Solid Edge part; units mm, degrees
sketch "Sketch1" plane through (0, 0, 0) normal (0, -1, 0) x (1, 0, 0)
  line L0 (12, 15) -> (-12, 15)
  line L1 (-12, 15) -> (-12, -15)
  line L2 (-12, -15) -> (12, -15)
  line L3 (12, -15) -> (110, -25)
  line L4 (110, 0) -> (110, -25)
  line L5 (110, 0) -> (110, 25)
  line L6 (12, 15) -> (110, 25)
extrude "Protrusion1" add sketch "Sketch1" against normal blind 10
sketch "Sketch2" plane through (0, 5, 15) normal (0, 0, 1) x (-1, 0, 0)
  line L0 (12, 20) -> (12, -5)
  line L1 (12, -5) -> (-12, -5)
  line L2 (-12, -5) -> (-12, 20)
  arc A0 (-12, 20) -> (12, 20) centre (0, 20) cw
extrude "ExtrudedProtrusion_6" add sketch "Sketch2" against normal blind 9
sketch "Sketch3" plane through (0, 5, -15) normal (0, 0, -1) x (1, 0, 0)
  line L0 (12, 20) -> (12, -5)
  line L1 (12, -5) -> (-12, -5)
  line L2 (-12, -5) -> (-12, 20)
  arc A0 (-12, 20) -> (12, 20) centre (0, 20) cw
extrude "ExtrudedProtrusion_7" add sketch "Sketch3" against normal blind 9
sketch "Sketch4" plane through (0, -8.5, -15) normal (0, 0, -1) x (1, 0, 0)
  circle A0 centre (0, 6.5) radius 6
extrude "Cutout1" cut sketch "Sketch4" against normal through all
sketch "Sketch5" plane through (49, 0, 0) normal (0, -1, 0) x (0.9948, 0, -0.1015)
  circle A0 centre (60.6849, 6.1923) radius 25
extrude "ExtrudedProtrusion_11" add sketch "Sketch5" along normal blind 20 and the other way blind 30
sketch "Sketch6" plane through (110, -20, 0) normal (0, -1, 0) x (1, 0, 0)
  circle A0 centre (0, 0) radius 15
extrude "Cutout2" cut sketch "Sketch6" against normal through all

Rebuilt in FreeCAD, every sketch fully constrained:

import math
import FreeCAD as App
import Part
import Sketcher

doc = App.newDocument("Part")
body = doc.addObject("PartDesign::Body", "Body")

# Sketch on XZ plane
sketch1 = doc.addObject("Sketcher::SketchObject", "Sketch")
body.addObject(sketch1)
sketch1.AttachmentSupport = (doc.XZ_Plane, [""])
sketch1.MapMode = "FlatFace"
sketch1.addGeometry(Part.LineSegment(App.Vector(110, 25, 0), App.Vector(12, 15, 0)), False)
sketch1.addGeometry(Part.LineSegment(App.Vector(12, 15, 0), App.Vector(-12, 15, 0)), False)
sketch1.addGeometry(Part.LineSegment(App.Vector(-12, 15, 0), App.Vector(-12, -15, 0)), False)
sketch1.addGeometry(Part.LineSegment(App.Vector(-12, -15, 0), App.Vector(12, -15, 0)), False)
sketch1.addGeometry(Part.LineSegment(App.Vector(12, -15, 0), App.Vector(110, -25, 0)), False)
sketch1.addGeometry(Part.LineSegment(App.Vector(110, -25, 0), App.Vector(110, 25, 0)), False)
sketch1.addConstraint(Sketcher.Constraint("Coincident", 0, 2, 1, 1))
sketch1.addConstraint(Sketcher.Constraint("Coincident", 1, 2, 2, 1))
sketch1.addConstraint(Sketcher.Constraint("Coincident", 2, 2, 3, 1))
sketch1.addConstraint(Sketcher.Constraint("Coincident", 3, 2, 4, 1))
sketch1.addConstraint(Sketcher.Constraint("Coincident", 4, 2, 5, 1))
sketch1.addConstraint(Sketcher.Constraint("Coincident", 5, 2, 0, 1))
sketch1.addConstraint(Sketcher.Constraint("Horizontal", 1))
sketch1.addConstraint(Sketcher.Constraint("Vertical", 2))
sketch1.addConstraint(Sketcher.Constraint("Horizontal", 3))
sketch1.addConstraint(Sketcher.Constraint("Vertical", 5))
sketch1.addConstraint(Sketcher.Constraint("Symmetric", 0, 2, 2, 2, -1, 1))
sketch1.addConstraint(Sketcher.Constraint("Vertical", 0, 2, 3, 2))
sketch1.addConstraint(Sketcher.Constraint("Equal", 0, 4))
sketch1.addConstraint(Sketcher.Constraint("DistanceX", 1, 2, 1, 1, 24.0))
sketch1.addConstraint(Sketcher.Constraint("DistanceY", 2, 2, 2, 1, 30.0))
sketch1.addConstraint(Sketcher.Constraint("DistanceY", 5, 1, 5, 2, 50.0))
sketch1.addConstraint(Sketcher.Constraint("DistanceX", -1, 1, 4, 2, 110.0))
pad1 = doc.addObject("PartDesign::Pad", "Pad")
body.addObject(pad1)
pad1.Profile = sketch1
pad1.Length = 10
pad1.Reversed = True

# Sketch on XY plane
sketch2 = doc.addObject("Sketcher::SketchObject", "Sketch001")
body.addObject(sketch2)
sketch2.AttachmentSupport = (doc.XY_Plane, [""])
sketch2.MapMode = "FlatFace"
sketch2.AttachmentOffset = App.Placement(App.Vector(0, 0, 15), App.Rotation())
sketch2.addGeometry(Part.LineSegment(App.Vector(-12, 10, 0), App.Vector(-12, -15, 0)), False)
sketch2.addGeometry(Part.ArcOfCircle(Part.Circle(App.Vector(0, -15, 0), App.Vector(0, 0, 1), 12), math.radians(180), math.radians(360)), False)
sketch2.addGeometry(Part.LineSegment(App.Vector(12, -15, 0), App.Vector(12, 10, 0)), False)
sketch2.addGeometry(Part.LineSegment(App.Vector(12, 10, 0), App.Vector(-12, 10, 0)), False)
sketch2.addConstraint(Sketcher.Constraint("Tangent", 0, 2, 1, 1))
sketch2.addConstraint(Sketcher.Constraint("Tangent", 1, 2, 2, 1))
sketch2.addConstraint(Sketcher.Constraint("Coincident", 2, 2, 3, 1))
sketch2.addConstraint(Sketcher.Constraint("Coincident", 3, 2, 0, 1))
sketch2.addConstraint(Sketcher.Constraint("Vertical", 0))
sketch2.addConstraint(Sketcher.Constraint("Vertical", 2))
sketch2.addConstraint(Sketcher.Constraint("Horizontal", 3))
sketch2.addConstraint(Sketcher.Constraint("PointOnObject", 1, 3, -2))
sketch2.addConstraint(Sketcher.Constraint("Radius", 1, 12.0))
sketch2.addConstraint(Sketcher.Constraint("DistanceY", 0, 2, 0, 1, 25.0))
sketch2.addConstraint(Sketcher.Constraint("DistanceY", 1, 3, -1, 1, 15.0))
pad2 = doc.addObject("PartDesign::Pad", "Pad001")
body.addObject(pad2)
pad2.Profile = sketch2
pad2.Length = 9
pad2.Reversed = True

# Sketch on XY plane
sketch3 = doc.addObject("Sketcher::SketchObject", "Sketch002")
body.addObject(sketch3)
sketch3.AttachmentSupport = (doc.XY_Plane, [""])
sketch3.MapMode = "FlatFace"
sketch3.AttachmentOffset = App.Placement(App.Vector(0, 0, -15), App.Rotation())
sketch3.addGeometry(Part.LineSegment(App.Vector(12, 10, 0), App.Vector(12, -15, 0)), False)
sketch3.addGeometry(Part.ArcOfCircle(Part.Circle(App.Vector(0, -15, 0), App.Vector(0, 0, 1), 12), math.radians(180), math.radians(360)), False)
sketch3.addGeometry(Part.LineSegment(App.Vector(-12, -15, 0), App.Vector(-12, 10, 0)), False)
sketch3.addGeometry(Part.LineSegment(App.Vector(-12, 10, 0), App.Vector(12, 10, 0)), False)
sketch3.addConstraint(Sketcher.Constraint("Tangent", 0, 2, 1, 2))
sketch3.addConstraint(Sketcher.Constraint("Tangent", 1, 1, 2, 1))
sketch3.addConstraint(Sketcher.Constraint("Coincident", 2, 2, 3, 1))
sketch3.addConstraint(Sketcher.Constraint("Coincident", 3, 2, 0, 1))
sketch3.addConstraint(Sketcher.Constraint("Vertical", 0))
sketch3.addConstraint(Sketcher.Constraint("Vertical", 2))
sketch3.addConstraint(Sketcher.Constraint("Horizontal", 3))
sketch3.addConstraint(Sketcher.Constraint("PointOnObject", 1, 3, -2))
sketch3.addConstraint(Sketcher.Constraint("Radius", 1, 12.0))
sketch3.addConstraint(Sketcher.Constraint("DistanceY", 0, 2, 0, 1, 25.0))
sketch3.addConstraint(Sketcher.Constraint("DistanceY", 1, 3, -1, 1, 15.0))
pad3 = doc.addObject("PartDesign::Pad", "Pad002")
body.addObject(pad3)
pad3.Profile = sketch3
pad3.Length = 9

# Sketch on XY plane
sketch4 = doc.addObject("Sketcher::SketchObject", "Sketch003")
body.addObject(sketch4)
sketch4.AttachmentSupport = (doc.XY_Plane, [""])
sketch4.MapMode = "FlatFace"
sketch4.AttachmentOffset = App.Placement(App.Vector(0, 0, -15), App.Rotation())
sketch4.addGeometry(Part.Circle(App.Vector(0, -15, 0), App.Vector(0, 0, 1), 6), False)
sketch4.addConstraint(Sketcher.Constraint("PointOnObject", 0, 3, -2))
sketch4.addConstraint(Sketcher.Constraint("Diameter", 0, 12.0))
sketch4.addConstraint(Sketcher.Constraint("DistanceY", 0, 3, -1, 1, 15.0))
pocket1 = doc.addObject("PartDesign::Pocket", "Pocket")
body.addObject(pocket1)
pocket1.Profile = sketch4
pocket1.Type = "ThroughAll"
pocket1.Reversed = True

# Sketch on XZ plane
sketch5 = doc.addObject("Sketcher::SketchObject", "Sketch004")
body.addObject(sketch5)
sketch5.AttachmentSupport = (doc.XZ_Plane, [""])
sketch5.MapMode = "FlatFace"
sketch5.addGeometry(Part.Circle(App.Vector(110, 0, 0), App.Vector(0, 0, 1), 25), False)
sketch5.addConstraint(Sketcher.Constraint("Diameter", 0, 50.0))
sketch5.addConstraint(Sketcher.Constraint("DistanceX", -1, 1, 0, 3, 110.0))
sketch5.addConstraint(Sketcher.Constraint("DistanceY", -1, 1, 0, 3, 0.0006))
pad4 = doc.addObject("PartDesign::Pad", "Pad003")
body.addObject(pad4)
pad4.Profile = sketch5
pad4.Type = "TwoLengths"
pad4.Length = 20
pad4.Length2 = 30

# Sketch on XZ plane
sketch6 = doc.addObject("Sketcher::SketchObject", "Sketch005")
body.addObject(sketch6)
sketch6.AttachmentSupport = (doc.XZ_Plane, [""])
sketch6.MapMode = "FlatFace"
sketch6.AttachmentOffset = App.Placement(App.Vector(0, 0, 20), App.Rotation())
sketch6.addGeometry(Part.Circle(App.Vector(110, 0, 0), App.Vector(0, 0, 1), 15), False)
sketch6.addConstraint(Sketcher.Constraint("PointOnObject", 0, 3, -1))
sketch6.addConstraint(Sketcher.Constraint("Diameter", 0, 30.0))
sketch6.addConstraint(Sketcher.Constraint("DistanceX", -1, 1, 0, 3, 110.0))
pocket2 = doc.addObject("PartDesign::Pocket", "Pocket001")
body.addObject(pocket2)
pocket2.Profile = sketch6
pocket2.Type = "ThroughAll"

doc.recompute()
